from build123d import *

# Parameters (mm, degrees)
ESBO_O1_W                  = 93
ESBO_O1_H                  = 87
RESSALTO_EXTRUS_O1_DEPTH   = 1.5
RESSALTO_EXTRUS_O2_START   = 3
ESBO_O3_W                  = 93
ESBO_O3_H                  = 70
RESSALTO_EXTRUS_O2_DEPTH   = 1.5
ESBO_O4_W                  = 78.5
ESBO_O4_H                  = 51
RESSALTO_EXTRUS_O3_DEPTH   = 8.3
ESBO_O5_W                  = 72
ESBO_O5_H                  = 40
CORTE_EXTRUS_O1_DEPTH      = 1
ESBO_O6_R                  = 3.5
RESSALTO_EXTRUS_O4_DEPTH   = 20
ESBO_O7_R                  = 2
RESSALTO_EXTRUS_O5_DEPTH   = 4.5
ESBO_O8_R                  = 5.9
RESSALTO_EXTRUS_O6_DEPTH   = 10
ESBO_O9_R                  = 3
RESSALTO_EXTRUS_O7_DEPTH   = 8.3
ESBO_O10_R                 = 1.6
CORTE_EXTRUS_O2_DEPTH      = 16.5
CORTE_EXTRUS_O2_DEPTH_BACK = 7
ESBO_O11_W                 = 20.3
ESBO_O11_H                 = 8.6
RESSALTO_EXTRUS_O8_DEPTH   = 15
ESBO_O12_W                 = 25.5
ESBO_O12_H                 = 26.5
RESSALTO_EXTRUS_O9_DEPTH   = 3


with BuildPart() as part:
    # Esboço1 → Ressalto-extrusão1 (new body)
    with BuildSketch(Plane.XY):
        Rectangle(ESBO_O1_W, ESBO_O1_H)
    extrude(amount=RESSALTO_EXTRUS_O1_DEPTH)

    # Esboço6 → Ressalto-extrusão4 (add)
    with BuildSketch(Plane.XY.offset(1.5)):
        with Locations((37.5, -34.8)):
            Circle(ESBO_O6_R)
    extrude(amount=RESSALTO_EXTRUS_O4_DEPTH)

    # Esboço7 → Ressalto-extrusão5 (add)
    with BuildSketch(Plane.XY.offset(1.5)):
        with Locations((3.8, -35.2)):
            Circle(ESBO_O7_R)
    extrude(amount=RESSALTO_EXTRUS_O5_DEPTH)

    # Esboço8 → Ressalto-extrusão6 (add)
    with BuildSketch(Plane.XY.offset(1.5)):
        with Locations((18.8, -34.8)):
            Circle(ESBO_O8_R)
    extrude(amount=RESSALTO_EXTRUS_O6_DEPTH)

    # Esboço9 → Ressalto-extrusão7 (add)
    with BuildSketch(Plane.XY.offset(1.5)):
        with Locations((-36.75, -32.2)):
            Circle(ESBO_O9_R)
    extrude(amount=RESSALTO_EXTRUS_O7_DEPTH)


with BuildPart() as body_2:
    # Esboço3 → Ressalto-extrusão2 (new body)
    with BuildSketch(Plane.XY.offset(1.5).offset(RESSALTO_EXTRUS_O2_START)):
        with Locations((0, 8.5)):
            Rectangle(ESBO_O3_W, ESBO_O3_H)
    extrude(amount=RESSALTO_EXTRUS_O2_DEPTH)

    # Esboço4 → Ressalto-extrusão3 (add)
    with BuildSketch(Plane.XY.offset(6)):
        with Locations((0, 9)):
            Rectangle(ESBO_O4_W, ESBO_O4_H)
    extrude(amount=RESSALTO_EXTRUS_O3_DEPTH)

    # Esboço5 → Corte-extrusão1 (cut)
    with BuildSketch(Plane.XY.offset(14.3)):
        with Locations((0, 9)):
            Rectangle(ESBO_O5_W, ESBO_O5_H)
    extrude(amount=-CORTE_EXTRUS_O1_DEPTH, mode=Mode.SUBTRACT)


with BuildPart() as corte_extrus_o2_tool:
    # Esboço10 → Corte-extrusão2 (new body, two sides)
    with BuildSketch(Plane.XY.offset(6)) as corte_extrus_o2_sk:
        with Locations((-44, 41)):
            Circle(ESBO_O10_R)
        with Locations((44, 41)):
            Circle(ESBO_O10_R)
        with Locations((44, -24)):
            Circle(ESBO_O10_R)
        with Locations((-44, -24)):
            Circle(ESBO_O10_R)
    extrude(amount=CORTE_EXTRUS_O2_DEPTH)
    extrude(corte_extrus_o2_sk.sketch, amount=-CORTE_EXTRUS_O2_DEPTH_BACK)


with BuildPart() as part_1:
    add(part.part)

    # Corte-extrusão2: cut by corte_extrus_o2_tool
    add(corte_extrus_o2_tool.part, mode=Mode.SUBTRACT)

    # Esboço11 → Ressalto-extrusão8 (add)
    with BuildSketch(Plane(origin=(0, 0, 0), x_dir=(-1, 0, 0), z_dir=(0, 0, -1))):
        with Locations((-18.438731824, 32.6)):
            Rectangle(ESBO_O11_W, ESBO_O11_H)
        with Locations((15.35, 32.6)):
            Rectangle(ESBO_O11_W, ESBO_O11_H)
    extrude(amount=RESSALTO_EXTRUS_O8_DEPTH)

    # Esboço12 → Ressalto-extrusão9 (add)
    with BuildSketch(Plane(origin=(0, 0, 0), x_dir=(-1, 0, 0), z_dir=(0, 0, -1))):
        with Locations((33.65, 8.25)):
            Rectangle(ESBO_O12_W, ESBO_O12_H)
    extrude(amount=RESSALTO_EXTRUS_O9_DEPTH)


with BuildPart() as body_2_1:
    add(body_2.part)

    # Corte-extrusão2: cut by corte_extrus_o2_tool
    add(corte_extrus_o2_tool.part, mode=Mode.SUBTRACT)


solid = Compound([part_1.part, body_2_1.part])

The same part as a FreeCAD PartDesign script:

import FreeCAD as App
import Part
import Sketcher
Q = App.Units.Quantity

doc = App.newDocument("Part")
body = doc.addObject("PartDesign::Body", "Body")

# Sketch on XY plane
sketch1 = doc.addObject("Sketcher::SketchObject", "Sketch")
body.addObject(sketch1)
sketch1.AttachmentSupport = (doc.XY_Plane, [""])
sketch1.MapMode = "FlatFace"
sketch1.addGeometry([
    Part.LineSegment(App.Vector(-46.5, 43.5, 0), App.Vector(-46.5, -43.5, 0)),
    Part.LineSegment(App.Vector(-46.5, -43.5, 0), App.Vector(46.5, -43.5, 0)),
    Part.LineSegment(App.Vector(46.5, -43.5, 0), App.Vector(46.5, 43.5, 0)),
    Part.LineSegment(App.Vector(46.5, 43.5, 0), App.Vector(-46.5, 43.5, 0)),
], False)
sketch1.addConstraint([
    Sketcher.Constraint("Coincident", 0, 2, 1, 1),
    Sketcher.Constraint("Coincident", 1, 2, 2, 1),
    Sketcher.Constraint("Coincident", 2, 2, 3, 1),
    Sketcher.Constraint("Coincident", 3, 2, 0, 1),
    Sketcher.Constraint("Vertical", 0),
    Sketcher.Constraint("Horizontal", 1),
    Sketcher.Constraint("Vertical", 2),
    Sketcher.Constraint("Horizontal", 3),
    Sketcher.Constraint("Symmetric", 0, 2, 2, 2, -1, 1),
    Sketcher.Constraint("DistanceX", 1, 1, 1, 2, Q("93 mm")),
    Sketcher.Constraint("DistanceY", 0, 2, 0, 1, Q("87 mm")),
])
pad1 = doc.addObject("PartDesign::Pad", "Pad")
body.addObject(pad1)
pad1.Profile = sketch1
pad1.Length = 1.5

# Sketch on XY plane
sketch2 = doc.addObject("Sketcher::SketchObject", "Sketch001")
body.addObject(sketch2)
sketch2.AttachmentSupport = (doc.XY_Plane, [""])
sketch2.MapMode = "FlatFace"
sketch2.AttachmentOffset = App.Placement(App.Vector(0, 0, 1.5), App.Rotation())
sketch2.addGeometry(Part.Circle(App.Vector(37.5, -34.8, 0), App.Vector(0, 0, 1), 3.5), False)
sketch2.addConstraint([
    Sketcher.Constraint("Diameter", 0, Q("7 mm")),
    Sketcher.Constraint("DistanceX", -1, 1, 0, 3, Q("37.5 mm")),
    Sketcher.Constraint("DistanceY", 0, 3, -1, 1, Q("34.8 mm")),
])
pad2 = doc.addObject("PartDesign::Pad", "Pad001")
body.addObject(pad2)
pad2.Profile = sketch2
pad2.Length = 20

# Sketch on XY plane
sketch3 = doc.addObject("Sketcher::SketchObject", "Sketch002")
body.addObject(sketch3)
sketch3.AttachmentSupport = (doc.XY_Plane, [""])
sketch3.MapMode = "FlatFace"
sketch3.AttachmentOffset = App.Placement(App.Vector(0, 0, 1.5), App.Rotation())
sketch3.addGeometry(Part.Circle(App.Vector(3.8, -35.2, 0), App.Vector(0, 0, 1), 2), False)
sketch3.addConstraint([
    Sketcher.Constraint("Diameter", 0, Q("4 mm")),
    Sketcher.Constraint("DistanceX", -1, 1, 0, 3, Q("3.8 mm")),
    Sketcher.Constraint("DistanceY", 0, 3, -1, 1, Q("35.2 mm")),
])
pad3 = doc.addObject("PartDesign::Pad", "Pad002")
body.addObject(pad3)
pad3.Profile = sketch3
pad3.Length = 4.5

# Sketch on XY plane
sketch4 = doc.addObject("Sketcher::SketchObject", "Sketch003")
body.addObject(sketch4)
sketch4.AttachmentSupport = (doc.XY_Plane, [""])
sketch4.MapMode = "FlatFace"
sketch4.AttachmentOffset = App.Placement(App.Vector(0, 0, 1.5), App.Rotation())
sketch4.addGeometry(Part.Circle(App.Vector(18.8, -34.8, 0), App.Vector(0, 0, 1), 5.9), False)
sketch4.addConstraint([
    Sketcher.Constraint("Diameter", 0, Q("11.8 mm")),
    Sketcher.Constraint("DistanceX", -1, 1, 0, 3, Q("18.8 mm")),
    Sketcher.Constraint("DistanceY", 0, 3, -1, 1, Q("34.8 mm")),
])
pad4 = doc.addObject("PartDesign::Pad", "Pad003")
body.addObject(pad4)
pad4.Profile = sketch4
pad4.Length = 10

# Sketch on XY plane
sketch5 = doc.addObject("Sketcher::SketchObject", "Sketch004")
body.addObject(sketch5)
sketch5.AttachmentSupport = (doc.XY_Plane, [""])
sketch5.MapMode = "FlatFace"
sketch5.AttachmentOffset = App.Placement(App.Vector(0, 0, 1.5), App.Rotation())
sketch5.addGeometry(Part.Circle(App.Vector(-36.75, -32.2, 0), App.Vector(0, 0, 1), 3), False)
sketch5.addConstraint([
    Sketcher.Constraint("Diameter", 0, Q("6 mm")),
    Sketcher.Constraint("DistanceY", 0, 3, -1, 1, Q("32.2 mm")),
    Sketcher.Constraint("DistanceX", 0, 3, -1, 1, Q("36.75 mm")),
])
pad5 = doc.addObject("PartDesign::Pad", "Pad004")
body.addObject(pad5)
pad5.Profile = sketch5
pad5.Length = 8.3
body2 = doc.addObject("PartDesign::Body", "Body001")

# Sketch on XY plane
sketch6 = doc.addObject("Sketcher::SketchObject", "Sketch005")
body2.addObject(sketch6)
sketch6.AttachmentSupport = (doc.getObject("XY_Plane001"), [""])
sketch6.MapMode = "FlatFace"
sketch6.AttachmentOffset = App.Placement(App.Vector(0, 0, 4.5), App.Rotation())
sketch6.addGeometry([
    Part.LineSegment(App.Vector(-46.5, 43.5, 0), App.Vector(-46.5, -26.5, 0)),
    Part.LineSegment(App.Vector(-46.5, -26.5, 0), App.Vector(46.5, -26.5, 0)),
    Part.LineSegment(App.Vector(46.5, -26.5, 0), App.Vector(46.5, 43.5, 0)),
    Part.LineSegment(App.Vector(46.5, 43.5, 0), App.Vector(-46.5, 43.5, 0)),
], False)
sketch6.addConstraint([
    Sketcher.Constraint("Coincident", 0, 2, 1, 1),
    Sketcher.Constraint("Coincident", 1, 2, 2, 1),
    Sketcher.Constraint("Coincident", 2, 2, 3, 1),
    Sketcher.Constraint("Coincident", 3, 2, 0, 1),
    Sketcher.Constraint("Vertical", 0),
    Sketcher.Constraint("Horizontal", 1),
    Sketcher.Constraint("Vertical", 2),
    Sketcher.Constraint("Horizontal", 3),
    Sketcher.Constraint("DistanceX", 1, 1, 1, 2, Q("93 mm")),
    Sketcher.Constraint("DistanceY", 0, 2, 0, 1, Q("70 mm")),
    Sketcher.Constraint("DistanceX", 0, 2, -1, 1, Q("46.5 mm")),
    Sketcher.Constraint("DistanceY", 0, 2, -1, 1, Q("26.5 mm")),
])
pad6 = doc.addObject("PartDesign::Pad", "Pad005")
body2.addObject(pad6)
pad6.Profile = sketch6
pad6.Length = 1.5

# Sketch on XY plane
sketch7 = doc.addObject("Sketcher::SketchObject", "Sketch006")
body2.addObject(sketch7)
sketch7.AttachmentSupport = (doc.getObject("XY_Plane001"), [""])
sketch7.MapMode = "FlatFace"
sketch7.AttachmentOffset = App.Placement(App.Vector(0, 0, 6), App.Rotation())
sketch7.addGeometry([
    Part.LineSegment(App.Vector(-39.25, 34.5, 0), App.Vector(-39.25, -16.5, 0)),
    Part.LineSegment(App.Vector(-39.25, -16.5, 0), App.Vector(39.25, -16.5, 0)),
    Part.LineSegment(App.Vector(39.25, -16.5, 0), App.Vector(39.25, 34.5, 0)),
    Part.LineSegment(App.Vector(39.25, 34.5, 0), App.Vector(-39.25, 34.5, 0)),
], False)
sketch7.addConstraint([
    Sketcher.Constraint("Coincident", 0, 2, 1, 1),
    Sketcher.Constraint("Coincident", 1, 2, 2, 1),
    Sketcher.Constraint("Coincident", 2, 2, 3, 1),
    Sketcher.Constraint("Coincident", 3, 2, 0, 1),
    Sketcher.Constraint("Vertical", 0),
    Sketcher.Constraint("Horizontal", 1),
    Sketcher.Constraint("Vertical", 2),
    Sketcher.Constraint("Horizontal", 3),
    Sketcher.Constraint("DistanceY", 0, 2, 0, 1, Q("51 mm")),
    Sketcher.Constraint("DistanceX", 1, 1, 1, 2, Q("78.5 mm")),
    Sketcher.Constraint("DistanceY", 0, 2, -1, 1, Q("16.5 mm")),
    Sketcher.Constraint("DistanceX", 0, 2, -1, 1, Q("39.25 mm")),
])
pad7 = doc.addObject("PartDesign::Pad", "Pad006")
body2.addObject(pad7)
pad7.Profile = sketch7
pad7.Length = 8.3

# Sketch on XY plane
sketch8 = doc.addObject("Sketcher::SketchObject", "Sketch007")
body2.addObject(sketch8)
sketch8.AttachmentSupport = (doc.getObject("XY_Plane001"), [""])
sketch8.MapMode = "FlatFace"
sketch8.AttachmentOffset = App.Placement(App.Vector(0, 0, 14.3), App.Rotation())
sketch8.addGeometry([
    Part.LineSegment(App.Vector(-36, 29, 0), App.Vector(-36, -11, 0)),
    Part.LineSegment(App.Vector(-36, -11, 0), App.Vector(36, -11, 0)),
    Part.LineSegment(App.Vector(36, -11, 0), App.Vector(36, 29, 0)),
    Part.LineSegment(App.Vector(36, 29, 0), App.Vector(-36, 29, 0)),
], False)
sketch8.addConstraint([
    Sketcher.Constraint("Coincident", 0, 2, 1, 1),
    Sketcher.Constraint("Coincident", 1, 2, 2, 1),
    Sketcher.Constraint("Coincident", 2, 2, 3, 1),
    Sketcher.Constraint("Coincident", 3, 2, 0, 1),
    Sketcher.Constraint("Vertical", 0),
    Sketcher.Constraint("Horizontal", 1),
    Sketcher.Constraint("Vertical", 2),
    Sketcher.Constraint("Horizontal", 3),
    Sketcher.Constraint("DistanceX", 1, 1, 1, 2, Q("72 mm")),
    Sketcher.Constraint("DistanceY", 0, 2, 0, 1, Q("40 mm")),
    Sketcher.Constraint("DistanceX", 0, 2, -1, 1, Q("36 mm")),
    Sketcher.Constraint("DistanceY", 0, 2, -1, 1, Q("11 mm")),
])
pocket1 = doc.addObject("PartDesign::Pocket", "Pocket")
body2.addObject(pocket1)
pocket1.Profile = sketch8
pocket1.Length = 1
body3 = doc.addObject("PartDesign::Body", "Body002")
body3.AllowCompound = True

# Sketch on XY plane
sketch9 = doc.addObject("Sketcher::SketchObject", "Sketch008")
body3.addObject(sketch9)
sketch9.AttachmentSupport = (doc.getObject("XY_Plane002"), [""])
sketch9.MapMode = "FlatFace"
sketch9.AttachmentOffset = App.Placement(App.Vector(0, 0, 6), App.Rotation())
sketch9.addGeometry([
    Part.Circle(App.Vector(-44, 41, 0), App.Vector(0, 0, 1), 1.6),
    Part.Circle(App.Vector(44, 41, 0), App.Vector(0, 0, 1), 1.6),
    Part.Circle(App.Vector(44, -24, 0), App.Vector(0, 0, 1), 1.6),
    Part.Circle(App.Vector(-44, -24, 0), App.Vector(0, 0, 1), 1.6),
], False)
sketch9.addConstraint([
    Sketcher.Constraint("Equal", 0, 1),
    Sketcher.Constraint("Equal", 1, 2),
    Sketcher.Constraint("Equal", 2, 3),
    Sketcher.Constraint("Symmetric", 0, 3, 1, 3, -2),
    Sketcher.Constraint("Symmetric", 2, 3, 3, 3, -2),
    Sketcher.Constraint("Vertical", 1, 3, 2, 3),
    Sketcher.Constraint("Diameter", 0, Q("3.2 mm")),
    Sketcher.Constraint("DistanceX", 0, 3, -1, 1, Q("44 mm")),
    Sketcher.Constraint("DistanceY", -1, 1, 0, 3, Q("41 mm")),
    Sketcher.Constraint("DistanceY", 2, 3, -1, 1, Q("24 mm")),
])
pad8 = doc.addObject("PartDesign::Pad", "Pad007")
body3.addObject(pad8)
pad8.Profile = sketch9
pad8.Type = "TwoLengths"
pad8.Length = 16.5
pad8.Length2 = 7
doc.recompute()

body4 = doc.addObject("PartDesign::Body", "Body003")
body4.BaseFeature = body3
boolean = doc.addObject("PartDesign::Boolean", "Boolean")
body.addObject(boolean)
boolean.Type = "Cut"
boolean.addObjects([body4])
doc.recompute()

# Sketch on XY plane
sketch10 = doc.addObject("Sketcher::SketchObject", "Sketch009")
body.addObject(sketch10)
sketch10.AttachmentSupport = (doc.XY_Plane, [""])
sketch10.MapMode = "FlatFace"
sketch10.addGeometry([
    Part.LineSegment(App.Vector(28.588732, 36.9, 0), App.Vector(28.588732, 28.3, 0)),  # 0
    Part.LineSegment(App.Vector(28.588732, 28.3, 0), App.Vector(8.288732, 28.3, 0)),  # 1
    Part.LineSegment(App.Vector(8.288732, 28.3, 0), App.Vector(8.288732, 36.9, 0)),  # 2
    Part.LineSegment(App.Vector(8.288732, 36.9, 0), App.Vector(28.588732, 36.9, 0)),  # 3
    Part.LineSegment(App.Vector(-5.2, 36.9, 0), App.Vector(-5.2, 28.3, 0)),  # 4
    Part.LineSegment(App.Vector(-5.2, 28.3, 0), App.Vector(-25.5, 28.3, 0)),  # 5
    Part.LineSegment(App.Vector(-25.5, 28.3, 0), App.Vector(-25.5, 36.9, 0)),  # 6
    Part.LineSegment(App.Vector(-25.5, 36.9, 0), App.Vector(-5.2, 36.9, 0)),  # 7
], False)
sketch10.addConstraint([
    Sketcher.Constraint("Coincident", 0, 2, 1, 1),
    Sketcher.Constraint("Coincident", 1, 2, 2, 1),
    Sketcher.Constraint("Coincident", 2, 2, 3, 1),
    Sketcher.Constraint("Coincident", 3, 2, 0, 1),
    Sketcher.Constraint("Coincident", 4, 2, 5, 1),
    Sketcher.Constraint("Coincident", 5, 2, 6, 1),
    Sketcher.Constraint("Coincident", 6, 2, 7, 1),
    Sketcher.Constraint("Coincident", 7, 2, 4, 1),
    Sketcher.Constraint("Vertical", 0),
    Sketcher.Constraint("Horizontal", 1),
    Sketcher.Constraint("Vertical", 2),
    Sketcher.Constraint("Horizontal", 3),
    Sketcher.Constraint("Vertical", 4),
    Sketcher.Constraint("Horizontal", 5),
    Sketcher.Constraint("Vertical", 6),
    Sketcher.Constraint("Horizontal", 7),
    Sketcher.Constraint("Horizontal", 1, 2, 4, 2),
    Sketcher.Constraint("Horizontal", 3, 2, 6, 2),
    Sketcher.Constraint("Equal", 3, 5),
    Sketcher.Constraint("DistanceX", 1, 2, 1, 1, Q("20.3 mm")),
    Sketcher.Constraint("DistanceY", 0, 2, 0, 1, Q("8.6 mm")),
    Sketcher.Constraint("DistanceY", -1, 1, 0, 2, Q("28.3 mm")),
    Sketcher.Constraint("DistanceX", 4, 2, -1, 1, Q("5.2 mm")),
    Sketcher.Constraint("DistanceX", -1, 1, 0, 2, Q("28.588732 mm")),
])
pad9 = doc.addObject("PartDesign::Pad", "Pad008")
body.addObject(pad9)
pad9.Profile = sketch10
pad9.Length = 15
pad9.Reversed = True

# Sketch on XY plane
sketch11 = doc.addObject("Sketcher::SketchObject", "Sketch010")
body.addObject(sketch11)
sketch11.AttachmentSupport = (doc.XY_Plane, [""])
sketch11.MapMode = "FlatFace"
sketch11.addGeometry([
    Part.LineSegment(App.Vector(-20.9, 21.5, 0), App.Vector(-20.9, -5, 0)),
    Part.LineSegment(App.Vector(-20.9, -5, 0), App.Vector(-46.4, -5, 0)),
    Part.LineSegment(App.Vector(-46.4, -5, 0), App.Vector(-46.4, 21.5, 0)),
    Part.LineSegment(App.Vector(-46.4, 21.5, 0), App.Vector(-20.9, 21.5, 0)),
], False)
sketch11.addConstraint([
    Sketcher.Constraint("Coincident", 0, 2, 1, 1),
    Sketcher.Constraint("Coincident", 1, 2, 2, 1),
    Sketcher.Constraint("Coincident", 2, 2, 3, 1),
    Sketcher.Constraint("Coincident", 3, 2, 0, 1),
    Sketcher.Constraint("Vertical", 0),
    Sketcher.Constraint("Horizontal", 1),
    Sketcher.Constraint("Vertical", 2),
    Sketcher.Constraint("Horizontal", 3),
    Sketcher.Constraint("DistanceX", 1, 2, 1, 1, Q("25.5 mm")),
    Sketcher.Constraint("DistanceY", 0, 2, 0, 1, Q("26.5 mm")),
    Sketcher.Constraint("DistanceY", 0, 2, -1, 1, Q("5 mm")),
    Sketcher.Constraint("DistanceX", 0, 2, -1, 1, Q("20.9 mm")),
])
pad10 = doc.addObject("PartDesign::Pad", "Pad009")
body.addObject(pad10)
pad10.Profile = sketch11
pad10.Length = 3
pad10.Reversed = True
doc.recompute()

boolean2 = doc.addObject("PartDesign::Boolean", "Boolean001")
body2.addObject(boolean2)
boolean2.Type = "Cut"
boolean2.addObjects([body3])

doc.recompute()
